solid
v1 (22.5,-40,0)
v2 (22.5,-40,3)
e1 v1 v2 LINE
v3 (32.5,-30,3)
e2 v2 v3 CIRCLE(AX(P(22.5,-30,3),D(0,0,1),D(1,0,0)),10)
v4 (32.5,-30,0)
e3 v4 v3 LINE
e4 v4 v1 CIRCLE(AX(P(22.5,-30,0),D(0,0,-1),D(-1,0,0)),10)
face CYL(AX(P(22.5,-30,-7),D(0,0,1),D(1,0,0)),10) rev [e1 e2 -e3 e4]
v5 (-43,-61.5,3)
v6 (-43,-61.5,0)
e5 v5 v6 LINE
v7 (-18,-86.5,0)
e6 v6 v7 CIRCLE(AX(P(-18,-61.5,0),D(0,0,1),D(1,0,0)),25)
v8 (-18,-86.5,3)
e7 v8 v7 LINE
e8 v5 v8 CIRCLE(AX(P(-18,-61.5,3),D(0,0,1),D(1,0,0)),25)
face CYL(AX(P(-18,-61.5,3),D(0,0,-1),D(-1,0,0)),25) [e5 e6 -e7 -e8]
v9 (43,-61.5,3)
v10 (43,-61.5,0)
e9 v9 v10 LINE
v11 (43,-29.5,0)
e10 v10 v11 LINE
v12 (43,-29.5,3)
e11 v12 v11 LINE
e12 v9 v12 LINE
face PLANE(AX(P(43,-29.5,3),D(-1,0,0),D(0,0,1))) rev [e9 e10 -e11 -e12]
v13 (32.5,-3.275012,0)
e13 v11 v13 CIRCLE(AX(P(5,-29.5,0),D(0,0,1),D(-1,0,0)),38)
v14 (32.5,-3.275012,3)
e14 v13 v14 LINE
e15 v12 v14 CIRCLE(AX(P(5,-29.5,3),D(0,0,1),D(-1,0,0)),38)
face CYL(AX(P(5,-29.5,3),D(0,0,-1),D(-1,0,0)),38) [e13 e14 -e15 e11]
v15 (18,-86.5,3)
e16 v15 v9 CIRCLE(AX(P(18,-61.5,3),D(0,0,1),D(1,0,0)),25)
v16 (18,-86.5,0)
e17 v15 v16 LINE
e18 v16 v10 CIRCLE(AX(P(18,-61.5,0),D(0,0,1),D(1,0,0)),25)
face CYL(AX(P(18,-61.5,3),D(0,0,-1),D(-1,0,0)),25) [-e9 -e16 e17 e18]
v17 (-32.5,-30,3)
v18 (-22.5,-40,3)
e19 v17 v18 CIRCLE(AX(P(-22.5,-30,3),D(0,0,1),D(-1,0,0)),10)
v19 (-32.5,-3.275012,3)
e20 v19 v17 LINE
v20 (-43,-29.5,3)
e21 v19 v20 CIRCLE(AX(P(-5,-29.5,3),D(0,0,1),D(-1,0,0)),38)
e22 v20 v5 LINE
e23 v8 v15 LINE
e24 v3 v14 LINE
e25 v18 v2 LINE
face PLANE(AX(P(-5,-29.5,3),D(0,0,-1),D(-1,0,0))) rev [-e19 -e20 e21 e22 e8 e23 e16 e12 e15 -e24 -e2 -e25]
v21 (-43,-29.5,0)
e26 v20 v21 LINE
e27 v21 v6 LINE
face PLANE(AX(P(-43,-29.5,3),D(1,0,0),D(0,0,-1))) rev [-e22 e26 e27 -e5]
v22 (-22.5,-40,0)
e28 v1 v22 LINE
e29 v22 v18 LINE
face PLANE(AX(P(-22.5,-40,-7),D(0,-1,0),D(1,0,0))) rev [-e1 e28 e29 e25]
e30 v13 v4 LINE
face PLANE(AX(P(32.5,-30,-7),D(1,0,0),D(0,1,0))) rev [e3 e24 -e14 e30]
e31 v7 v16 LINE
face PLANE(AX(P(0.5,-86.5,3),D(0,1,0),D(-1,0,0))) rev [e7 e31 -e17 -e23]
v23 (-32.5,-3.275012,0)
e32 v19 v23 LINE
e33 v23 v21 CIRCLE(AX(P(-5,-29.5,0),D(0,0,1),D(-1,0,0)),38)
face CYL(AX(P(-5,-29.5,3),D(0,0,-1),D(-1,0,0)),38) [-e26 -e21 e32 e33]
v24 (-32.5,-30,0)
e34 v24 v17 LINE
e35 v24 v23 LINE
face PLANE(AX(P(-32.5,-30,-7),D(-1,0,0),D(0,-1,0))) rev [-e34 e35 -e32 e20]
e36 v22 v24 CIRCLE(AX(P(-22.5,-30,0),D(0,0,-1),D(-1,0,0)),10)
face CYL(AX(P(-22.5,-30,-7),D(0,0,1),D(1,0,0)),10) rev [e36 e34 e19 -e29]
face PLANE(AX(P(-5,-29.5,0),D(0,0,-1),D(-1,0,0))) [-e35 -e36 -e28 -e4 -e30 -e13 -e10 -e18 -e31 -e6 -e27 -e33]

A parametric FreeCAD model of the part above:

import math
import FreeCAD as App
import Part
import Sketcher
Q = App.Units.Quantity

doc = App.newDocument("Part")
body = doc.addObject("PartDesign::Body", "Body")

# Sketch on XY plane
sketch1 = body.newObject("Sketcher::SketchObject", "Sketch")
sketch1.AttachmentSupport = (doc.getObject("XY_Plane"), [""])
sketch1.MapMode = "FlatFace"
sketch1.addGeometry([
    Part.LineSegment(App.Vector(5, 8.5, 0), App.Vector(-5, 8.5, 0)),  # 0
    Part.ArcOfCircle(Part.Circle(App.Vector(-5, -29.5, 0), App.Vector(0, 0, 1), 38), math.radians(90), math.radians(180)),  # 1
    Part.LineSegment(App.Vector(-43, -29.5, 0), App.Vector(-43, -61.5, 0)),  # 2
    Part.ArcOfCircle(Part.Circle(App.Vector(-18, -61.5, 0), App.Vector(0, 0, 1), 25), math.radians(180), math.radians(270)),  # 3
    Part.LineSegment(App.Vector(-18, -86.5, 0), App.Vector(18, -86.5, 0)),  # 4
    Part.ArcOfCircle(Part.Circle(App.Vector(18, -61.5, 0), App.Vector(0, 0, 1), 25), math.radians(-90), math.radians(0)),  # 5
    Part.LineSegment(App.Vector(43, -61.5, 0), App.Vector(43, -29.5, 0)),  # 6
    Part.ArcOfCircle(Part.Circle(App.Vector(5, -29.5, 0), App.Vector(0, 0, 1), 38), math.radians(0), math.radians(90)),  # 7
], False)
sketch1.addConstraint([
    Sketcher.Constraint("Tangent", 0, 2, 1, 1),
    Sketcher.Constraint("Tangent", 1, 2, 2, 1),
    Sketcher.Constraint("Tangent", 2, 2, 3, 1),
    Sketcher.Constraint("Tangent", 3, 2, 4, 1),
    Sketcher.Constraint("Tangent", 4, 2, 5, 1),
    Sketcher.Constraint("Tangent", 5, 2, 6, 1),
    Sketcher.Constraint("Tangent", 6, 2, 7, 1),
    Sketcher.Constraint("Tangent", 7, 2, 0, 1),
    Sketcher.Constraint("Horizontal", 0),
    Sketcher.Constraint("Vertical", 2),
    Sketcher.Constraint("Horizontal", 4),
    Sketcher.Constraint("Vertical", 6),
    Sketcher.Constraint("Equal", 3, 5),
    Sketcher.Constraint("Equal", 1, 7),
    Sketcher.Constraint("Radius", 1, Q("38 mm")),
    Sketcher.Constraint("Radius", 3, Q("25 mm")),
    Sketcher.Constraint("DistanceX", 0, 2, 0, 1, Q("10 mm")),
    Sketcher.Constraint("DistanceY", 2, 2, 2, 1, Q("32 mm")),
    Sketcher.Constraint("DistanceX", 1, 3, -1, 1, Q("5 mm")),
    Sketcher.Constraint("DistanceY", 1, 3, -1, 1, Q("29.5 mm")),
])
pad1 = body.newObject("PartDesign::Pad", "Pad")
pad1.Profile = sketch1
pad1.Length = 3

# Sketch on XY plane
sketch2 = body.newObject("Sketcher::SketchObject", "Sketch001")
sketch2.AttachmentSupport = (doc.getObject("XY_Plane"), [""])
sketch2.MapMode = "FlatFace"
sketch2.AttachmentOffset = App.Placement(App.Vector(0, 0, 3), App.Rotation())
sketch2.addGeometry([
    Part.LineSegment(App.Vector(-22.5, -40, 0), App.Vector(22.5, -40, 0)),  # 0
    Part.ArcOfCircle(Part.Circle(App.Vector(22.5, -30, 0), App.Vector(0, 0, 1), 10), math.radians(-90), math.radians(0)),  # 1
    Part.LineSegment(App.Vector(32.5, -30, 0), App.Vector(32.5, 20, 0)),  # 2
    Part.ArcOfCircle(Part.Circle(App.Vector(22.5, 20, 0), App.Vector(0, 0, 1), 10), math.radians(0), math.radians(90)),  # 3
    Part.LineSegment(App.Vector(22.5, 30, 0), App.Vector(-22.5, 30, 0)),  # 4
    Part.ArcOfCircle(Part.Circle(App.Vector(-22.5, 20, 0), App.Vector(0, 0, 1), 10), math.radians(90), math.radians(180)),  # 5
    Part.LineSegment(App.Vector(-32.5, 20, 0), App.Vector(-32.5, -30, 0)),  # 6
    Part.ArcOfCircle(Part.Circle(App.Vector(-22.5, -30, 0), App.Vector(0, 0, 1), 10), math.radians(180), math.radians(270)),  # 7
], False)
sketch2.addConstraint([
    Sketcher.Constraint("Tangent", 0, 2, 1, 1),
    Sketcher.Constraint("Tangent", 1, 2, 2, 1),
    Sketcher.Constraint("Tangent", 2, 2, 3, 1),
    Sketcher.Constraint("Tangent", 3, 2, 4, 1),
    Sketcher.Constraint("Tangent", 4, 2, 5, 1),
    Sketcher.Constraint("Tangent", 5, 2, 6, 1),
    Sketcher.Constraint("Tangent", 6, 2, 7, 1),
    Sketcher.Constraint("Tangent", 7, 2, 0, 1),
    Sketcher.Constraint("Horizontal", 0),
    Sketcher.Constraint("Vertical", 2),
    Sketcher.Constraint("Horizontal", 4),
    Sketcher.Constraint("Vertical", 6),
    Sketcher.Constraint("Equal", 1, 3),
    Sketcher.Constraint("Equal", 3, 5),
    Sketcher.Constraint("Equal", 5, 7),
    Sketcher.Constraint("Radius", 1, Q("10 mm")),
    Sketcher.Constraint("DistanceX", 0, 1, 0, 2, Q("45 mm")),
    Sketcher.Constraint("DistanceY", 2, 1, 2, 2, Q("50 mm")),
    Sketcher.Constraint("DistanceY", 1, 3, -1, 1, Q("30 mm")),
    Sketcher.Constraint("DistanceX", -1, 1, 1, 3, Q("22.5 mm")),
])
pocket1 = body.newObject("PartDesign::Pocket", "Pocket")
pocket1.Profile = sketch2
pocket1.Length = 10

doc.recompute()
